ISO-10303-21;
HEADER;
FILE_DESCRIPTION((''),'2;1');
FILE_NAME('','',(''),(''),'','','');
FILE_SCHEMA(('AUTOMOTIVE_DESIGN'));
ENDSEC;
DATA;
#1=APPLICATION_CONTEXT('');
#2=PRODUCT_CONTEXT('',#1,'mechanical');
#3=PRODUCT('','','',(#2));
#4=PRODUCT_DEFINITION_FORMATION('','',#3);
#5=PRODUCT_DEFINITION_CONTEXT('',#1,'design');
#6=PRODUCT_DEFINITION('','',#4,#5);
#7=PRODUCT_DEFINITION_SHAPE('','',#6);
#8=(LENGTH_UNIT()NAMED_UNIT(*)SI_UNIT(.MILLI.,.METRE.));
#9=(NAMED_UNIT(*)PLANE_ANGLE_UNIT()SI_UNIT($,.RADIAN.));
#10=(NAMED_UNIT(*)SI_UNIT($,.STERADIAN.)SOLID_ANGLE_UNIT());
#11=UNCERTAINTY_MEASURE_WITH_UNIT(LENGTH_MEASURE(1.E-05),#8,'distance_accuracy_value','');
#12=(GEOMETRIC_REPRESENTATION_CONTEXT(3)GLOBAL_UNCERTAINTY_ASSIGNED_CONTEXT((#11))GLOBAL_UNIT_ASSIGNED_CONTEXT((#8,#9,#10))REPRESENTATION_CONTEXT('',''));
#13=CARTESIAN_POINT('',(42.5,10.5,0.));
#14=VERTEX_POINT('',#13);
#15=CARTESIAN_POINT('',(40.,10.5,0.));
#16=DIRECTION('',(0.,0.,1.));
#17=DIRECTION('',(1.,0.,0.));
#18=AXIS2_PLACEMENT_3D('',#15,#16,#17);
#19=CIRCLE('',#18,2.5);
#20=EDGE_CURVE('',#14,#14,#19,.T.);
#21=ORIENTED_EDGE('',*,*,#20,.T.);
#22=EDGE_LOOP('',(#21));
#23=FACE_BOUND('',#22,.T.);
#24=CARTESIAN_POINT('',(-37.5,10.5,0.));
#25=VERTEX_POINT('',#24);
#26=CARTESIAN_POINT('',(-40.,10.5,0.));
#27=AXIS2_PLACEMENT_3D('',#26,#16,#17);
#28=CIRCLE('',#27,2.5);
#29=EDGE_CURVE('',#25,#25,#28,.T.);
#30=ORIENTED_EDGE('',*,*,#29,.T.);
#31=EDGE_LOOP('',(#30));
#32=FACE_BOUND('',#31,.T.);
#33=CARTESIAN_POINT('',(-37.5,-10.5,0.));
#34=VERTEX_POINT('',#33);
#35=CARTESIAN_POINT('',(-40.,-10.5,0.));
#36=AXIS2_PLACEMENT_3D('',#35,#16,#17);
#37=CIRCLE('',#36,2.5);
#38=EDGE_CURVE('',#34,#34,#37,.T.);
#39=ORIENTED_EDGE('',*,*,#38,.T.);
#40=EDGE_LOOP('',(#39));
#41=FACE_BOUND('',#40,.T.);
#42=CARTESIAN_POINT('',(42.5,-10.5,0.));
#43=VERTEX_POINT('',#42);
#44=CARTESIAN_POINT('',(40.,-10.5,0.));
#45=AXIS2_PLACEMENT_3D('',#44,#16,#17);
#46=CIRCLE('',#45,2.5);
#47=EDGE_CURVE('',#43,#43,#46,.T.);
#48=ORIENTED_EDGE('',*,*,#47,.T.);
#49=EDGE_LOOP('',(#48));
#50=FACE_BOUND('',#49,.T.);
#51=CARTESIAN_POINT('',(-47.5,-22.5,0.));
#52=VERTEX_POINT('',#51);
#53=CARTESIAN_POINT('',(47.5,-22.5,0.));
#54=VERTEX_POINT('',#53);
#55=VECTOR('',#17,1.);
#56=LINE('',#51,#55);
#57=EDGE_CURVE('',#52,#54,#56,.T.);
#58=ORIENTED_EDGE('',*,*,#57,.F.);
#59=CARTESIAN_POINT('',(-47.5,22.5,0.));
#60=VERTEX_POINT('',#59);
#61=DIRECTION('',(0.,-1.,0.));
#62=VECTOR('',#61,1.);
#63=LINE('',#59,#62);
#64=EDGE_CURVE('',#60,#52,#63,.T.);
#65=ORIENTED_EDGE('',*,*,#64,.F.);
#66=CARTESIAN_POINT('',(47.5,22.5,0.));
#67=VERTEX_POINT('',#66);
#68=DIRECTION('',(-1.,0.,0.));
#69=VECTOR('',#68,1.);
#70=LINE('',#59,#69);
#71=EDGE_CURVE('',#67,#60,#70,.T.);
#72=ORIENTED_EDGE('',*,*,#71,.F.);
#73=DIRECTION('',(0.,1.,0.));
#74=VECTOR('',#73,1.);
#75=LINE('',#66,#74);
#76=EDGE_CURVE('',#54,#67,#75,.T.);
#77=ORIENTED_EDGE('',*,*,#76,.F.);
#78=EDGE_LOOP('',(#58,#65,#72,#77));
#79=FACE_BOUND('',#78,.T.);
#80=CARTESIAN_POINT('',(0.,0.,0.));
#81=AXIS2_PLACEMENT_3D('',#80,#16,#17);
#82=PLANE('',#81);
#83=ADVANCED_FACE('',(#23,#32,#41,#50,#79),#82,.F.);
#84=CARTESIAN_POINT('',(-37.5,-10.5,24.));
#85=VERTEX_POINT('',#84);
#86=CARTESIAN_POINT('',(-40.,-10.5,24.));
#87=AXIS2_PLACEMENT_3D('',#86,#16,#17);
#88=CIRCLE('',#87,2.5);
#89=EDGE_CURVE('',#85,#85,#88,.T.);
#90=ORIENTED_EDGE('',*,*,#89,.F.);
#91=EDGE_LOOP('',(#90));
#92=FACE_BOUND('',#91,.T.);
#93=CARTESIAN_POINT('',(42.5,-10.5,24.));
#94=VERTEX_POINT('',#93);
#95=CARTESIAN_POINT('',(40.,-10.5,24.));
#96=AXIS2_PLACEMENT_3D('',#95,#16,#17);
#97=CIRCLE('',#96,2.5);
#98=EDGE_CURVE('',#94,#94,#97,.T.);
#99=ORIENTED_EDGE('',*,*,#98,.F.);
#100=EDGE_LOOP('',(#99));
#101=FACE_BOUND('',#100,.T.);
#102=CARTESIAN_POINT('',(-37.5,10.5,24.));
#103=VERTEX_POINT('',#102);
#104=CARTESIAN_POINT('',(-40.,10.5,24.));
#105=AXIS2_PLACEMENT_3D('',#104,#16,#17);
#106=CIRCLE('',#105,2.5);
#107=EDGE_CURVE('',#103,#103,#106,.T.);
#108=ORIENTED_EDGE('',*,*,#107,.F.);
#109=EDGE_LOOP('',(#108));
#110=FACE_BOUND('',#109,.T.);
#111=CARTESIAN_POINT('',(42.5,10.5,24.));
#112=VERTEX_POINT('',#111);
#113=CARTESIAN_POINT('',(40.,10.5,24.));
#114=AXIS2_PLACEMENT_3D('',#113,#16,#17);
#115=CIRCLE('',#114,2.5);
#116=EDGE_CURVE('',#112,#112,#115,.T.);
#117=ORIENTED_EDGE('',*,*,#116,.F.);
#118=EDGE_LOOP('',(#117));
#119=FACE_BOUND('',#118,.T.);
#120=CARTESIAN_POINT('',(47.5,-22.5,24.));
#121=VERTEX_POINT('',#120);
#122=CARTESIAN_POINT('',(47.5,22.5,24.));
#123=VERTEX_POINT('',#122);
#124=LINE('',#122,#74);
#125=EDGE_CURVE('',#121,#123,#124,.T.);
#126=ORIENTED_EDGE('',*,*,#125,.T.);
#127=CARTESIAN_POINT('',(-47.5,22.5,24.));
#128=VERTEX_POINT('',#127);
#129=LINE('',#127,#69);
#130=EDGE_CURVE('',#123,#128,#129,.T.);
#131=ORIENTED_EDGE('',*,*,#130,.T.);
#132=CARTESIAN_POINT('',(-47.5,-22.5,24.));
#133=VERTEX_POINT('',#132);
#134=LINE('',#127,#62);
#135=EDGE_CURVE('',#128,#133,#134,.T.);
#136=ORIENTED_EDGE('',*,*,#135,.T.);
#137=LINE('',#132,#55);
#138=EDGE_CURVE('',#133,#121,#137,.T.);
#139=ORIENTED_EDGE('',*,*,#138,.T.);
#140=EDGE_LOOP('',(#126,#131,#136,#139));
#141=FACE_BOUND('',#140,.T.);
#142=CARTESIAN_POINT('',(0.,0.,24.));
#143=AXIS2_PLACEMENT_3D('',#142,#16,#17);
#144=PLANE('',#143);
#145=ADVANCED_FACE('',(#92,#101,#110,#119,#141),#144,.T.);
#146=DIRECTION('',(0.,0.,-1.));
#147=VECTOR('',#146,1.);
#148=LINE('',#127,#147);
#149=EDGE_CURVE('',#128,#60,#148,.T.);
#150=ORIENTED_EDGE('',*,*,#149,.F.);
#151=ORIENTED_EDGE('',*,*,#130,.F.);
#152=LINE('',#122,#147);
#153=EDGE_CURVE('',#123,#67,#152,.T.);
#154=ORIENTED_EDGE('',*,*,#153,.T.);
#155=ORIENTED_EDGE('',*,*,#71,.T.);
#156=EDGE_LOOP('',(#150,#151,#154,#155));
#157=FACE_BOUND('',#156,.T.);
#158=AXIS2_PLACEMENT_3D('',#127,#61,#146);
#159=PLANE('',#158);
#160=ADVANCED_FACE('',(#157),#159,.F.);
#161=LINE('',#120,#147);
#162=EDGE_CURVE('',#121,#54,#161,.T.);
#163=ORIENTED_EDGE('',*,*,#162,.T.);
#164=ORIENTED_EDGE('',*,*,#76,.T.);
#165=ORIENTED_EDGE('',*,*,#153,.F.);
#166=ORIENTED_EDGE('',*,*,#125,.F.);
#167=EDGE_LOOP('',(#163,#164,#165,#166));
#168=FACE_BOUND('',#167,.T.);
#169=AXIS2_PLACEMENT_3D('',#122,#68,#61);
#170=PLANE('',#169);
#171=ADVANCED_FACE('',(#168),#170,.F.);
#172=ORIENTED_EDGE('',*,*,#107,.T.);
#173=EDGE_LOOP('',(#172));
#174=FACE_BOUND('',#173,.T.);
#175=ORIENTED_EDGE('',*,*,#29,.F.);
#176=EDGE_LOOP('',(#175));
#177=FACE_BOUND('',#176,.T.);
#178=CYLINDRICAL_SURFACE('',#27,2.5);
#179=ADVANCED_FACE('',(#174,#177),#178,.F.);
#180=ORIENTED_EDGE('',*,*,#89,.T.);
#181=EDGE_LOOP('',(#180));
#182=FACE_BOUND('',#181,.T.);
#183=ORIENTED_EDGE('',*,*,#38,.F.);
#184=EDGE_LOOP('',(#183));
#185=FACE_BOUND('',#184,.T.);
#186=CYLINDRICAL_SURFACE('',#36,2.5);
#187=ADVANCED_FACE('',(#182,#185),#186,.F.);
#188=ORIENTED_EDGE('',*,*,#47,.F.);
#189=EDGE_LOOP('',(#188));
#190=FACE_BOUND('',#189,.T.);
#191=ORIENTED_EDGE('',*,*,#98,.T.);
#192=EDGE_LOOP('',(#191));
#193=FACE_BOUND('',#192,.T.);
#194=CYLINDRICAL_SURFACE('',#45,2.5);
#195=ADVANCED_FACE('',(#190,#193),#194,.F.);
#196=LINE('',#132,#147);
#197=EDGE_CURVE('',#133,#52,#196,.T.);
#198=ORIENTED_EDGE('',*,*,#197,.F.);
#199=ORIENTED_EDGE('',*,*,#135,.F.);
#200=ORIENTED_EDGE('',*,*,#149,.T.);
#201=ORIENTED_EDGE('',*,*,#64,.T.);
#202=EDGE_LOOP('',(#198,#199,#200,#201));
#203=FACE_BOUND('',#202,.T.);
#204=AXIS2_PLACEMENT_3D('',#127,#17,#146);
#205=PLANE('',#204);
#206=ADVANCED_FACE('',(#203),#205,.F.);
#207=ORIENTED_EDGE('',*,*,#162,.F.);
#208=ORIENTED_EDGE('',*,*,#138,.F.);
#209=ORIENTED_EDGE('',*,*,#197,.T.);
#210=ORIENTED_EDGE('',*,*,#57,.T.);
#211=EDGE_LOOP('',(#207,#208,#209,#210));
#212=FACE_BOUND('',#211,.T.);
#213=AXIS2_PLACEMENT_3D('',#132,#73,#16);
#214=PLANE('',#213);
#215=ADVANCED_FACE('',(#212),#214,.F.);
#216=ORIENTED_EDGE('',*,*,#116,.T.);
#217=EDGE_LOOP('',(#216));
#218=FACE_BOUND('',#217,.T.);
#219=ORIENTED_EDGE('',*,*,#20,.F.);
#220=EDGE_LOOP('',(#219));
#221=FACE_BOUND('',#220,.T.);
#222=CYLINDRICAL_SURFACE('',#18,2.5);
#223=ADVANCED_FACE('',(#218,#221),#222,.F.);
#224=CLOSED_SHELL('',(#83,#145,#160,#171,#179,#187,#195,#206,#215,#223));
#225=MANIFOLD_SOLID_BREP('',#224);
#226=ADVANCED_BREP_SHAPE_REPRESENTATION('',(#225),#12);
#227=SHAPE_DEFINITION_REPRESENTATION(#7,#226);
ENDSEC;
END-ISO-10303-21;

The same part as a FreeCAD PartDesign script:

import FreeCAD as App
import Part
import Sketcher

doc = App.newDocument("Part")
body = doc.addObject("PartDesign::Body", "Body")

sketch1 = doc.addObject("Sketcher::SketchObject", "Sketch")
body.addObject(sketch1)
sketch1.AttachmentSupport = (doc.XY_Plane, [""])
sketch1.MapMode = "FlatFace"
sketch1.addGeometry(Part.LineSegment(App.Vector(-48, 22, 0), App.Vector(-48, -22, 0)), False)
sketch1.addGeometry(Part.LineSegment(App.Vector(-48, -22, 0), App.Vector(48, -22, 0)), False)
sketch1.addGeometry(Part.LineSegment(App.Vector(48, -22, 0), App.Vector(48, 22, 0)), False)
sketch1.addGeometry(Part.LineSegment(App.Vector(48, 22, 0), App.Vector(-48, 22, 0)), False)
sketch1.addConstraint(Sketcher.Constraint("Coincident", 0, 2, 1, 1))
sketch1.addConstraint(Sketcher.Constraint("Coincident", 1, 2, 2, 1))
sketch1.addConstraint(Sketcher.Constraint("Coincident", 2, 2, 3, 1))
sketch1.addConstraint(Sketcher.Constraint("Coincident", 3, 2, 0, 1))
sketch1.addConstraint(Sketcher.Constraint("Vertical", 0))
sketch1.addConstraint(Sketcher.Constraint("Horizontal", 1))
sketch1.addConstraint(Sketcher.Constraint("Vertical", 2))
sketch1.addConstraint(Sketcher.Constraint("Horizontal", 3))
sketch1.addConstraint(Sketcher.Constraint("Symmetric", 0, 2, 2, 2, -1, 1))
sketch1.addConstraint(Sketcher.Constraint("DistanceX", 1, 1, 1, 2, 95.0))
sketch1.addConstraint(Sketcher.Constraint("DistanceY", 0, 2, 0, 1, 45.0))
pad1 = doc.addObject("PartDesign::Pad", "Pad")
body.addObject(pad1)
pad1.Profile = sketch1
pad1.Length = 24

sketch2 = doc.addObject("Sketcher::SketchObject", "Sketch001")
body.addObject(sketch2)
sketch2.AttachmentSupport = (doc.XY_Plane, [""])
sketch2.MapMode = "FlatFace"
sketch2.AttachmentOffset = App.Placement(App.Vector(0, 0, 24), App.Rotation())
sketch2.addGeometry(Part.Circle(App.Vector(-40, 10.5, 0), App.Vector(0, 0, 1), 2.5), False)
sketch2.addGeometry(Part.Circle(App.Vector(-40, -10.5, 0), App.Vector(0, 0, 1), 2.5), False)
sketch2.addGeometry(Part.Circle(App.Vector(40, -10.5, 0), App.Vector(0, 0, 1), 2.5), False)
sketch2.addGeometry(Part.Circle(App.Vector(40, 10.5, 0), App.Vector(0, 0, 1), 2.5), False)
sketch2.addConstraint(Sketcher.Constraint("Equal", 0, 1))
sketch2.addConstraint(Sketcher.Constraint("Equal", 1, 2))
sketch2.addConstraint(Sketcher.Constraint("Equal", 2, 3))
sketch2.addConstraint(Sketcher.Constraint("Symmetric", 0, 3, 2, 3, -1, 1))
sketch2.addConstraint(Sketcher.Constraint("Symmetric", 1, 3, 3, 3, -1, 1))
sketch2.addConstraint(Sketcher.Constraint("Symmetric", 1, 3, 2, 3, -2))
sketch2.addConstraint(Sketcher.Constraint("Diameter", 0, 5.0))
sketch2.addConstraint(Sketcher.Constraint("DistanceX", 0, 3, -1, 1, 40.0))
sketch2.addConstraint(Sketcher.Constraint("DistanceY", 1, 3, 0, 3, 21.0))
pocket1 = doc.addObject("PartDesign::Pocket", "Pocket")
body.addObject(pocket1)
pocket1.Profile = sketch2
pocket1.Type = "ThroughAll"

doc.recompute()
